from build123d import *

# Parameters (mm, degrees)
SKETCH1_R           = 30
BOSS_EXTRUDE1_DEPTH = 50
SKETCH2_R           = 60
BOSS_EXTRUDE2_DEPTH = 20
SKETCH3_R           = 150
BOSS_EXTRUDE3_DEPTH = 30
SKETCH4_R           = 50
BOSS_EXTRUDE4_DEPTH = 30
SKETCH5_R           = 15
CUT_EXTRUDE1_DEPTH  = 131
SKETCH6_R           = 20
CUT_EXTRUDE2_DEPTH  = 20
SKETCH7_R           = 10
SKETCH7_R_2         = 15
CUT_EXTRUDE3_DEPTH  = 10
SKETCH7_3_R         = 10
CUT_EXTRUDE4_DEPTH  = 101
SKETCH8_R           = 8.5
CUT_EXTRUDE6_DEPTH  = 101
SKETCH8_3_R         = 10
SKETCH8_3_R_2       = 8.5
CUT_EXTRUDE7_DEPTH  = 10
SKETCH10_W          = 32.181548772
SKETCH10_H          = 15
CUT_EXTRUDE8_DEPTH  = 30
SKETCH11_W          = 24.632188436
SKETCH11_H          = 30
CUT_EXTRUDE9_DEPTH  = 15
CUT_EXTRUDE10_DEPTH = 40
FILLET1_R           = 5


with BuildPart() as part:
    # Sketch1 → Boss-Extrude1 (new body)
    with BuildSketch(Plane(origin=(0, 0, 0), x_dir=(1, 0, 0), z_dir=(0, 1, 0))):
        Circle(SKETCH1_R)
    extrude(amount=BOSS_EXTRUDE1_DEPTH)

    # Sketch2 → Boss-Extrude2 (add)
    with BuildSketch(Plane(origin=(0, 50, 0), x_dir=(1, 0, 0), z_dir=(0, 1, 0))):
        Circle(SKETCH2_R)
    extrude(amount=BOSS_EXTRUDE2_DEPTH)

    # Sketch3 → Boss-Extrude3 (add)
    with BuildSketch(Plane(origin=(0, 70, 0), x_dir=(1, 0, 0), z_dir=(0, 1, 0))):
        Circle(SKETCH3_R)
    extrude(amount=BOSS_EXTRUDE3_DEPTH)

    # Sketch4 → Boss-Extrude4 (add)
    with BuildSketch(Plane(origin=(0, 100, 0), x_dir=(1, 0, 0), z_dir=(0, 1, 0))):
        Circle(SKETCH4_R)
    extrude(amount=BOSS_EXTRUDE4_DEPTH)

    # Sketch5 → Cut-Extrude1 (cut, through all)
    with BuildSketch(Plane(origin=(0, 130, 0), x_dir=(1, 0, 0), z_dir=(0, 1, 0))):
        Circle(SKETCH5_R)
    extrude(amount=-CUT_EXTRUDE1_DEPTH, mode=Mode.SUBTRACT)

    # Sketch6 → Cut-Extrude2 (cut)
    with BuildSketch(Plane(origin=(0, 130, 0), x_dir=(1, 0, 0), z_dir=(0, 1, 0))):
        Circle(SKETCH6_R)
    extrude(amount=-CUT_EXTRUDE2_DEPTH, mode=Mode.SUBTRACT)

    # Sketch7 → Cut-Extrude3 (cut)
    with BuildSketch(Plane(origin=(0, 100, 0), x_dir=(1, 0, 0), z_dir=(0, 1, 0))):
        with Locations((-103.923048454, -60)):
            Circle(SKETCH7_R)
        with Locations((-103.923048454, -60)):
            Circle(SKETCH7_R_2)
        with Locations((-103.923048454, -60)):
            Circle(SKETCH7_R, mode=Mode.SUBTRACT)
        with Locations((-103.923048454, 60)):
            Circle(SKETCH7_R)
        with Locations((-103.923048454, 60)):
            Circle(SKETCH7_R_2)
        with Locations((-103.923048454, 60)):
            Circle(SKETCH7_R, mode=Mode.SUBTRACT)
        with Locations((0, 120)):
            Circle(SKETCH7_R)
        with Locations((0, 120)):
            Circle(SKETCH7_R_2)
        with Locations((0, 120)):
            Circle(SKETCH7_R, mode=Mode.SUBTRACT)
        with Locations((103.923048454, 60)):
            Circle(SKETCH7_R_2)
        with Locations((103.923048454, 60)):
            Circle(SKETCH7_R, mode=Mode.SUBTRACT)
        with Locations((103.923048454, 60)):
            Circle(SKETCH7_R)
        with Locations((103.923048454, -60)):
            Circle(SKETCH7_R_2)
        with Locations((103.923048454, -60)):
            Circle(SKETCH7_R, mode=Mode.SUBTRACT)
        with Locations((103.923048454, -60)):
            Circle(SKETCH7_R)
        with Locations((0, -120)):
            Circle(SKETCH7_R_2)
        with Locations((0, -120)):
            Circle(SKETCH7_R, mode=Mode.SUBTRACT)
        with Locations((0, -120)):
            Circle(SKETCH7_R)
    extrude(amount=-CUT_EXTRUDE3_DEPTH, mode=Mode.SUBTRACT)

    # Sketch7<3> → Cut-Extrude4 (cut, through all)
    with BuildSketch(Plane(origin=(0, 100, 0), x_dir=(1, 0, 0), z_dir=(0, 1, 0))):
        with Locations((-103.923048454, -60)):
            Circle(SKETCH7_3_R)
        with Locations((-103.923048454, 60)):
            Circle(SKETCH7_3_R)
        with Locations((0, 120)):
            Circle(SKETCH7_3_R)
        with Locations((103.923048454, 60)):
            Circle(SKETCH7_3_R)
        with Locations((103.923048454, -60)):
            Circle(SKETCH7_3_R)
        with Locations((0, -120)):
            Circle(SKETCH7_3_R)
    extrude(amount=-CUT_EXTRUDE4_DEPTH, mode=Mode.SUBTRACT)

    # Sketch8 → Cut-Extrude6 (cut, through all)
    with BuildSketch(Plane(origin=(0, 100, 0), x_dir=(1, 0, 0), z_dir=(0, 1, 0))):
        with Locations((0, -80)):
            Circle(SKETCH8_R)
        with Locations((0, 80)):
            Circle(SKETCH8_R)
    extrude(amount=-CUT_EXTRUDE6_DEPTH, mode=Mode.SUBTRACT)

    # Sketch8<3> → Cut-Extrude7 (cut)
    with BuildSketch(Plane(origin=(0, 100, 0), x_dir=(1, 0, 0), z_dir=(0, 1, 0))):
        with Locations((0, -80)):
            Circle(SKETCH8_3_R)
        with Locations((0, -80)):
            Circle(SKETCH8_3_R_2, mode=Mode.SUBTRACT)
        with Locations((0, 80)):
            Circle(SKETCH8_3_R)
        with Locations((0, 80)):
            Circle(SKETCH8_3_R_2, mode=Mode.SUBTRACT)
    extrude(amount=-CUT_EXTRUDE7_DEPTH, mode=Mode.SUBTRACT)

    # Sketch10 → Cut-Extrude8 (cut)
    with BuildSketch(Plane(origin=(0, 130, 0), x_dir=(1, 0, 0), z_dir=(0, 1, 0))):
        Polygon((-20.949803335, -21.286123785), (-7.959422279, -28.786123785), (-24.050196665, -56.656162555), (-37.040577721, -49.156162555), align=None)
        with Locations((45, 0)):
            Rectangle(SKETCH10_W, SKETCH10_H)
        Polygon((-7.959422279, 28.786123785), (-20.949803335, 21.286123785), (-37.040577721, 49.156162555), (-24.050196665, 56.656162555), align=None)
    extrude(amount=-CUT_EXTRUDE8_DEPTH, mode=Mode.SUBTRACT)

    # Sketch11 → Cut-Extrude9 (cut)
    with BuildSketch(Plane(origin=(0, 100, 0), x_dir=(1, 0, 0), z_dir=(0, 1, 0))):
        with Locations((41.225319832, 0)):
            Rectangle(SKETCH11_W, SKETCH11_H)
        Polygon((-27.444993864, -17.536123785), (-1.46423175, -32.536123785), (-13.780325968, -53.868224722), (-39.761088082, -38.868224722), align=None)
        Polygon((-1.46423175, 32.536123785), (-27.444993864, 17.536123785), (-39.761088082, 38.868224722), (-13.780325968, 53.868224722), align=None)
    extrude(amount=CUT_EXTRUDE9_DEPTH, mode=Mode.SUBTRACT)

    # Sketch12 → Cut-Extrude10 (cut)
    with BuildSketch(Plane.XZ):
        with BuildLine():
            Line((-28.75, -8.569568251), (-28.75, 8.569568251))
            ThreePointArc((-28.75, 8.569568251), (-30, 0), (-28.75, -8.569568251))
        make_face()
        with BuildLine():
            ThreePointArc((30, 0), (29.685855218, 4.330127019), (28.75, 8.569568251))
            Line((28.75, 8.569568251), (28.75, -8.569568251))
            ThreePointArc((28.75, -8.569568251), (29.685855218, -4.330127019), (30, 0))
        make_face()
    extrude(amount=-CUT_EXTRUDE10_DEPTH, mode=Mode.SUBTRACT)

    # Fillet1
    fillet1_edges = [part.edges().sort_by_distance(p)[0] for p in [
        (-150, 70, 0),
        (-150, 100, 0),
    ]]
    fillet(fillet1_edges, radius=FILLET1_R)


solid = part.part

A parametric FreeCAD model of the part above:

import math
import FreeCAD as App
import Part
import Sketcher
from FreeCAD import Vector
Q = App.Units.Quantity


def edges_at(feature, points):
    """Names of the edges that pass closest to the given points."""
    edges = feature.Shape.Edges
    near = lambda p: min(range(len(edges)), key=lambda i: edges[i].distToShape(Part.Vertex(*p))[0])
    return sorted({f"Edge{near(p) + 1}" for p in points})

doc = App.newDocument("Part")
body = doc.addObject("PartDesign::Body", "Body")

sketch1 = body.newObject("Sketcher::SketchObject", "Sketch")
sketch1.AttachmentSupport = (doc.getObject("XZ_Plane"), [""])
sketch1.MapMode = "FlatFace"
sketch1.addGeometry(Part.Circle(Vector(0, 0, 0), Vector(0, 0, 1), 30), False)
sketch1.addConstraint([
    Sketcher.Constraint("Coincident", 0, 3, -1, 1),
    Sketcher.Constraint("Diameter", 0, Q("60 mm")),
])
pad1 = body.newObject("PartDesign::Pad", "Pad")
pad1.Profile = sketch1
pad1.Length = 50
pad1.Reversed = True

sketch2 = body.newObject("Sketcher::SketchObject", "Sketch001")
sketch2.AttachmentSupport = (doc.getObject("XZ_Plane"), [""])
sketch2.MapMode = "FlatFace"
sketch2.AttachmentOffset = App.Placement(Vector(0, 0, -50), App.Rotation())
sketch2.addGeometry(Part.Circle(Vector(0, 0, 0), Vector(0, 0, 1), 60), False)
sketch2.addConstraint([
    Sketcher.Constraint("Coincident", 0, 3, -1, 1),
    Sketcher.Constraint("Diameter", 0, Q("120 mm")),
])
pad2 = body.newObject("PartDesign::Pad", "Pad001")
pad2.Profile = sketch2
pad2.Length = 20
pad2.Reversed = True

sketch3 = body.newObject("Sketcher::SketchObject", "Sketch002")
sketch3.AttachmentSupport = (doc.getObject("XZ_Plane"), [""])
sketch3.MapMode = "FlatFace"
sketch3.AttachmentOffset = App.Placement(Vector(0, 0, -70), App.Rotation())
sketch3.addGeometry(Part.Circle(Vector(0, 0, 0), Vector(0, 0, 1), 150), False)
sketch3.addConstraint([
    Sketcher.Constraint("Coincident", 0, 3, -1, 1),
    Sketcher.Constraint("Diameter", 0, Q("300 mm")),
])
pad3 = body.newObject("PartDesign::Pad", "Pad002")
pad3.Profile = sketch3
pad3.Length = 30
pad3.Reversed = True

sketch4 = body.newObject("Sketcher::SketchObject", "Sketch003")
sketch4.AttachmentSupport = (doc.getObject("XZ_Plane"), [""])
sketch4.MapMode = "FlatFace"
sketch4.AttachmentOffset = App.Placement(Vector(0, 0, -100), App.Rotation())
sketch4.addGeometry(Part.Circle(Vector(0, 0, 0), Vector(0, 0, 1), 50), False)
sketch4.addConstraint([
    Sketcher.Constraint("Coincident", 0, 3, -1, 1),
    Sketcher.Constraint("Diameter", 0, Q("100 mm")),
])
pad4 = body.newObject("PartDesign::Pad", "Pad003")
pad4.Profile = sketch4
pad4.Length = 30
pad4.Reversed = True

sketch5 = body.newObject("Sketcher::SketchObject", "Sketch004")
sketch5.AttachmentSupport = (doc.getObject("XZ_Plane"), [""])
sketch5.MapMode = "FlatFace"
sketch5.AttachmentOffset = App.Placement(Vector(0, 0, -130), App.Rotation())
sketch5.addGeometry(Part.Circle(Vector(0, 0, 0), Vector(0, 0, 1), 15), False)
sketch5.addConstraint([
    Sketcher.Constraint("Coincident", 0, 3, -1, 1),
    Sketcher.Constraint("Diameter", 0, Q("30 mm")),
])
pocket1 = body.newObject("PartDesign::Pocket", "Pocket")
pocket1.Profile = sketch5
pocket1.Type = "ThroughAll"
pocket1.Reversed = True

sketch6 = body.newObject("Sketcher::SketchObject", "Sketch005")
sketch6.AttachmentSupport = (doc.getObject("XZ_Plane"), [""])
sketch6.MapMode = "FlatFace"
sketch6.AttachmentOffset = App.Placement(Vector(0, 0, -130), App.Rotation())
sketch6.addGeometry(Part.Circle(Vector(0, 0, 0), Vector(0, 0, 1), 20), False)
sketch6.addConstraint([
    Sketcher.Constraint("Coincident", 0, 3, -1, 1),
    Sketcher.Constraint("Diameter", 0, Q("40 mm")),
])
pocket2 = body.newObject("PartDesign::Pocket", "Pocket001")
pocket2.Profile = sketch6
pocket2.Length = 20
pocket2.Reversed = True

sketch7 = body.newObject("Sketcher::SketchObject", "Sketch006")
sketch7.AttachmentSupport = (doc.getObject("XZ_Plane"), [""])
sketch7.MapMode = "FlatFace"
sketch7.AttachmentOffset = App.Placement(Vector(0, 0, -100), App.Rotation())
sketch7.addGeometry([
    Part.Circle(Vector(-104, 60, 0), Vector(0, 0, 1), 15),
    Part.Circle(Vector(-104, 60, 0), Vector(0, 0, 1), 10),
    Part.Circle(Vector(-104, -60, 0), Vector(0, 0, 1), 15),
    Part.Circle(Vector(-104, -60, 0), Vector(0, 0, 1), 10),
    Part.Circle(Vector(0, -120, 0), Vector(0, 0, 1), 15),
    Part.Circle(Vector(0, -120, 0), Vector(0, 0, 1), 10),
    Part.Circle(Vector(104, -60, 0), Vector(0, 0, 1), 15),
    Part.Circle(Vector(104, 60, 0), Vector(0, 0, 1), 15),
    Part.Circle(Vector(0, 120, 0), Vector(0, 0, 1), 15),
], False)
sketch7.addConstraint([
    Sketcher.Constraint("Coincident", 1, 3, 0, 3),
    Sketcher.Constraint("Coincident", 3, 3, 2, 3),
    Sketcher.Constraint("Coincident", 5, 3, 4, 3),
    Sketcher.Constraint("Equal", 0, 2),
    Sketcher.Constraint("Equal", 1, 3),
    Sketcher.Constraint("Equal", 2, 4),
    Sketcher.Constraint("Equal", 3, 5),
    Sketcher.Constraint("Equal", 4, 6),
    Sketcher.Constraint("Equal", 6, 7),
    Sketcher.Constraint("Equal", 7, 8),
    Sketcher.Constraint("Symmetric", 0, 3, 6, 3, -1, 1),
    Sketcher.Constraint("Symmetric", 2, 3, 7, 3, -1, 1),
    Sketcher.Constraint("Symmetric", 4, 3, 8, 3, -1, 1),
    Sketcher.Constraint("Symmetric", 2, 3, 6, 3, -2),
    Sketcher.Constraint("PointOnObject", 4, 3, -2),
    Sketcher.Constraint("Diameter", 0, Q("30 mm")),
    Sketcher.Constraint("Diameter", 1, Q("20 mm")),
    Sketcher.Constraint("DistanceY", -1, 1, 0, 3, Q("60 mm")),
    Sketcher.Constraint("DistanceY", 4, 3, -1, 1, Q("120 mm")),
    Sketcher.Constraint("DistanceX", 0, 3, -1, 1, Q("103.923048 mm")),
])
pocket3 = body.newObject("PartDesign::Pocket", "Pocket002")
pocket3.Profile = sketch7
pocket3.Length = 10
pocket3.Reversed = True

sketch8 = body.newObject("Sketcher::SketchObject", "Sketch007")
sketch8.AttachmentSupport = (doc.getObject("XZ_Plane"), [""])
sketch8.MapMode = "FlatFace"
sketch8.AttachmentOffset = App.Placement(Vector(0, 0, -100), App.Rotation())
sketch8.addGeometry([
    Part.Circle(Vector(-104, 60, 0), Vector(0, 0, 1), 10),
    Part.Circle(Vector(-104, -60, 0), Vector(0, 0, 1), 10),
    Part.Circle(Vector(0, -120, 0), Vector(0, 0, 1), 10),
    Part.Circle(Vector(104, -60, 0), Vector(0, 0, 1), 10),
    Part.Circle(Vector(104, 60, 0), Vector(0, 0, 1), 10),
    Part.Circle(Vector(0, 120, 0), Vector(0, 0, 1), 10),
], False)
sketch8.addConstraint([
    Sketcher.Constraint("Equal", 0, 1),
    Sketcher.Constraint("Equal", 1, 2),
    Sketcher.Constraint("Equal", 2, 3),
    Sketcher.Constraint("Equal", 3, 4),
    Sketcher.Constraint("Equal", 4, 5),
    Sketcher.Constraint("Symmetric", 0, 3, 3, 3, -1, 1),
    Sketcher.Constraint("Symmetric", 1, 3, 4, 3, -1, 1),
    Sketcher.Constraint("Symmetric", 2, 3, 5, 3, -1, 1),
    Sketcher.Constraint("Symmetric", 1, 3, 3, 3, -2),
    Sketcher.Constraint("PointOnObject", 2, 3, -2),
    Sketcher.Constraint("Diameter", 0, Q("20 mm")),
    Sketcher.Constraint("DistanceY", -1, 1, 0, 3, Q("60 mm")),
    Sketcher.Constraint("DistanceY", 2, 3, -1, 1, Q("120 mm")),
    Sketcher.Constraint("DistanceX", 0, 3, -1, 1, Q("103.923048 mm")),
])
pocket4 = body.newObject("PartDesign::Pocket", "Pocket003")
pocket4.Profile = sketch8
pocket4.Type = "ThroughAll"
pocket4.Reversed = True

sketch9 = body.newObject("Sketcher::SketchObject", "Sketch008")
sketch9.AttachmentSupport = (doc.getObject("XZ_Plane"), [""])
sketch9.MapMode = "FlatFace"
sketch9.AttachmentOffset = App.Placement(Vector(0, 0, -100), App.Rotation())
sketch9.addGeometry([
    Part.Circle(Vector(0, 80, 0), Vector(0, 0, 1), 8),
    Part.Circle(Vector(0, -80, 0), Vector(0, 0, 1), 8),
], False)
sketch9.addConstraint([
    Sketcher.Constraint("Equal", 0, 1),
    Sketcher.Constraint("Symmetric", 0, 3, 1, 3, -1, 1),
    Sketcher.Constraint("PointOnObject", 0, 3, -2),
    Sketcher.Constraint("Diameter", 0, Q("17 mm")),
    Sketcher.Constraint("DistanceY", -1, 1, 0, 3, Q("80 mm")),
])
pocket5 = body.newObject("PartDesign::Pocket", "Pocket004")
pocket5.Profile = sketch9
pocket5.Type = "ThroughAll"
pocket5.Reversed = True

sketch10 = body.newObject("Sketcher::SketchObject", "Sketch009")
sketch10.AttachmentSupport = (doc.getObject("XZ_Plane"), [""])
sketch10.MapMode = "FlatFace"
sketch10.AttachmentOffset = App.Placement(Vector(0, 0, -100), App.Rotation())
sketch10.addGeometry([
    Part.Circle(Vector(0, 80, 0), Vector(0, 0, 1), 10),
    Part.Circle(Vector(0, 80, 0), Vector(0, 0, 1), 8),
    Part.Circle(Vector(0, -80, 0), Vector(0, 0, 1), 10),
    Part.Circle(Vector(0, -80, 0), Vector(0, 0, 1), 8),
], False)
sketch10.addConstraint([
    Sketcher.Constraint("Coincident", 1, 3, 0, 3),
    Sketcher.Constraint("Coincident", 3, 3, 2, 3),
    Sketcher.Constraint("Equal", 0, 2),
    Sketcher.Constraint("Equal", 1, 3),
    Sketcher.Constraint("Symmetric", 0, 3, 2, 3, -1, 1),
    Sketcher.Constraint("PointOnObject", 0, 3, -2),
    Sketcher.Constraint("Diameter", 0, Q("20 mm")),
    Sketcher.Constraint("Diameter", 1, Q("17 mm")),
    Sketcher.Constraint("DistanceY", -1, 1, 0, 3, Q("80 mm")),
])
pocket6 = body.newObject("PartDesign::Pocket", "Pocket005")
pocket6.Profile = sketch10
pocket6.Length = 10
pocket6.Reversed = True

sketch11 = body.newObject("Sketcher::SketchObject", "Sketch010")
sketch11.AttachmentSupport = (doc.getObject("XZ_Plane"), [""])
sketch11.MapMode = "FlatFace"
sketch11.AttachmentOffset = App.Placement(Vector(0, 0, -130), App.Rotation())
sketch11.addGeometry([
    Part.LineSegment(Vector(-8, 29, 0), Vector(-21, 21, 0)),
    Part.LineSegment(Vector(-21, 21, 0), Vector(-37, 49, 0)),
    Part.LineSegment(Vector(-37, 49, 0), Vector(-24, 57, 0)),
    Part.LineSegment(Vector(-24, 57, 0), Vector(-8, 29, 0)),
    Part.LineSegment(Vector(29, -8, 0), Vector(29, 8, 0)),
    Part.LineSegment(Vector(29, 8, 0), Vector(61, 8, 0)),
    Part.LineSegment(Vector(61, 8, 0), Vector(61, -8, 0)),
    Part.LineSegment(Vector(61, -8, 0), Vector(29, -8, 0)),
    Part.LineSegment(Vector(-21, -21, 0), Vector(-8, -29, 0)),
    Part.LineSegment(Vector(-8, -29, 0), Vector(-24, -57, 0)),
    Part.LineSegment(Vector(-24, -57, 0), Vector(-37, -49, 0)),
    Part.LineSegment(Vector(-37, -49, 0), Vector(-21, -21, 0)),
], False)
sketch11.addConstraint([
    Sketcher.Constraint("Coincident", 0, 2, 1, 1),
    Sketcher.Constraint("Coincident", 1, 2, 2, 1),
    Sketcher.Constraint("Coincident", 2, 2, 3, 1),
    Sketcher.Constraint("Coincident", 3, 2, 0, 1),
    Sketcher.Constraint("Coincident", 4, 2, 5, 1),
    Sketcher.Constraint("Coincident", 5, 2, 6, 1),
    Sketcher.Constraint("Coincident", 6, 2, 7, 1),
    Sketcher.Constraint("Coincident", 7, 2, 4, 1),
    Sketcher.Constraint("Coincident", 8, 2, 9, 1),
    Sketcher.Constraint("Coincident", 9, 2, 10, 1),
    Sketcher.Constraint("Coincident", 10, 2, 11, 1),
    Sketcher.Constraint("Coincident", 11, 2, 8, 1),
    Sketcher.Constraint("Vertical", 4),
    Sketcher.Constraint("Horizontal", 5),
    Sketcher.Constraint("Vertical", 6),
    Sketcher.Constraint("Horizontal", 7),
    Sketcher.Constraint("Symmetric", 3, 2, 8, 2, -1),
    Sketcher.Constraint("Symmetric", 2, 2, 9, 2, -1),
    Sketcher.Constraint("Symmetric", 1, 2, 10, 2, -1),
    Sketcher.Constraint("Symmetric", 0, 2, 11, 2, -1),
    Sketcher.Constraint("Perpendicular", 0, 1),
    Sketcher.Constraint("Perpendicular", 1, 2),
    Sketcher.Constraint("Perpendicular", 2, 3),
    Sketcher.Constraint("DistanceY", 4, 1, 4, 2, Q("15 mm")),
    Sketcher.Constraint("Angle", 0, Q("-150 deg")),
    Sketcher.Constraint("Distance", 0, Q("15 mm")),
    Sketcher.Constraint("DistanceY", -1, 1, 4, 2, Q("7.5 mm")),
    Sketcher.Constraint("DistanceX", 5, 1, 5, 2, Q("32.181549 mm")),
    Sketcher.Constraint("Distance", 1, Q("32.181549 mm")),
    Sketcher.Constraint("DistanceX", 0, 2, 4, 2, Q("49.859029 mm")),
    Sketcher.Constraint("DistanceX", 0, 2, -1, 1, Q("20.949803 mm")),
    Sketcher.Constraint("DistanceY", -1, 1, 0, 2, Q("21.286124 mm")),
])
pocket7 = body.newObject("PartDesign::Pocket", "Pocket006")
pocket7.Profile = sketch11
pocket7.Length = 30
pocket7.Reversed = True

sketch12 = body.newObject("Sketcher::SketchObject", "Sketch011")
sketch12.AttachmentSupport = (doc.getObject("XZ_Plane"), [""])
sketch12.MapMode = "FlatFace"
sketch12.AttachmentOffset = App.Placement(Vector(0, 0, -100), App.Rotation())
sketch12.addGeometry([
    Part.LineSegment(Vector(29, -15, 0), Vector(29, 15, 0)),
    Part.LineSegment(Vector(29, 15, 0), Vector(54, 15, 0)),
    Part.LineSegment(Vector(54, 15, 0), Vector(54, -15, 0)),
    Part.LineSegment(Vector(54, -15, 0), Vector(29, -15, 0)),
    Part.LineSegment(Vector(-1, 33, 0), Vector(-27, 18, 0)),
    Part.LineSegment(Vector(-27, 18, 0), Vector(-40, 39, 0)),
    Part.LineSegment(Vector(-40, 39, 0), Vector(-14, 54, 0)),
    Part.LineSegment(Vector(-14, 54, 0), Vector(-1, 33, 0)),
    Part.LineSegment(Vector(-27, -18, 0), Vector(-1, -33, 0)),
    Part.LineSegment(Vector(-1, -33, 0), Vector(-14, -54, 0)),
    Part.LineSegment(Vector(-14, -54, 0), Vector(-40, -39, 0)),
    Part.LineSegment(Vector(-40, -39, 0), Vector(-27, -18, 0)),
], False)
sketch12.addConstraint([
    Sketcher.Constraint("Coincident", 0, 2, 1, 1),
    Sketcher.Constraint("Coincident", 1, 2, 2, 1),
    Sketcher.Constraint("Coincident", 2, 2, 3, 1),
    Sketcher.Constraint("Coincident", 3, 2, 0, 1),
    Sketcher.Constraint("Coincident", 4, 2, 5, 1),
    Sketcher.Constraint("Coincident", 5, 2, 6, 1),
    Sketcher.Constraint("Coincident", 6, 2, 7, 1),
    Sketcher.Constraint("Coincident", 7, 2, 4, 1),
    Sketcher.Constraint("Coincident", 8, 2, 9, 1),
    Sketcher.Constraint("Coincident", 9, 2, 10, 1),
    Sketcher.Constraint("Coincident", 10, 2, 11, 1),
    Sketcher.Constraint("Coincident", 11, 2, 8, 1),
    Sketcher.Constraint("Vertical", 0),
    Sketcher.Constraint("Horizontal", 1),
    Sketcher.Constraint("Vertical", 2),
    Sketcher.Constraint("Horizontal", 3),
    Sketcher.Constraint("Symmetric", 7, 2, 8, 2, -1),
    Sketcher.Constraint("Symmetric", 6, 2, 9, 2, -1),
    Sketcher.Constraint("Symmetric", 5, 2, 10, 2, -1),
    Sketcher.Constraint("Symmetric", 4, 2, 11, 2, -1),
    Sketcher.Constraint("Perpendicular", 4, 5),
    Sketcher.Constraint("Perpendicular", 5, 6),
    Sketcher.Constraint("Perpendicular", 6, 7),
    Sketcher.Constraint("DistanceY", 0, 1, 0, 2, Q("30 mm")),
    Sketcher.Constraint("Angle", 4, Q("-150 deg")),
    Sketcher.Constraint("Distance", 4, Q("30 mm")),
    Sketcher.Constraint("DistanceY", -1, 1, 0, 2, Q("15 mm")),
    Sketcher.Constraint("DistanceX", 1, 1, 1, 2, Q("24.632188 mm")),
    Sketcher.Constraint("DistanceY", 4, 2, 5, 2, Q("21.332101 mm")),
    Sketcher.Constraint("DistanceX", 5, 2, -1, 1, Q("39.761088 mm")),
    Sketcher.Constraint("DistanceX", 4, 2, 0, 2, Q("56.354219 mm")),
    Sketcher.Constraint("DistanceY", 9, 2, 4, 2, Q("71.404349 mm")),
])
pocket8 = body.newObject("PartDesign::Pocket", "Pocket007")
pocket8.Profile = sketch12
pocket8.Length = 15

sketch13 = body.newObject("Sketcher::SketchObject", "Sketch012")
sketch13.AttachmentSupport = (doc.getObject("XZ_Plane"), [""])
sketch13.MapMode = "FlatFace"
sketch13.addGeometry([
    Part.LineSegment(Vector(-29, -9, 0), Vector(-29, 9, 0)),
    Part.ArcOfCircle(Part.Circle(Vector(0, 0, 0), Vector(0, 0, 1), 30), math.radians(163), math.radians(197)),
    Part.ArcOfCircle(Part.Circle(Vector(0, 0, 0), Vector(0, 0, 1), 30), math.radians(0), math.radians(16.6)),
    Part.LineSegment(Vector(29, 9, 0), Vector(29, -9, 0)),
    Part.ArcOfCircle(Part.Circle(Vector(0, 0, 0), Vector(0, 0, 1), 30), math.radians(-16.6), math.radians(0)),
], False)
sketch13.addConstraint([
    Sketcher.Constraint("Coincident", 0, 1, 1, 2),
    Sketcher.Constraint("Coincident", 1, 1, 0, 2),
    Sketcher.Constraint("Coincident", 2, 2, 3, 1),
    Sketcher.Constraint("Coincident", 3, 2, 4, 1),
    Sketcher.Constraint("Tangent", 4, 2, 2, 1),
    Sketcher.Constraint("Vertical", 0),
    Sketcher.Constraint("Vertical", 3),
    Sketcher.Constraint("Coincident", 1, 3, -1, 1),
    Sketcher.Constraint("Coincident", 2, 3, -1, 1),
    Sketcher.Constraint("Equal", 1, 2),
    Sketcher.Constraint("Equal", 2, 4),
    Sketcher.Constraint("PointOnObject", 4, 2, -1),
    Sketcher.Constraint("Horizontal", 1, 1, 2, 2),
    Sketcher.Constraint("Radius", 1, Q("30 mm")),
    Sketcher.Constraint("DistanceX", 1, 1, 2, 2, Q("57.5 mm")),
])
pocket9 = body.newObject("PartDesign::Pocket", "Pocket008")
pocket9.Profile = sketch13
pocket9.Length = 40
doc.recompute()

fillet = body.newObject("PartDesign::Fillet", "Fillet")
fillet.Base = (pocket9, edges_at(pocket9, [(-150, 70, 0), (-150, 100, 0)]))
fillet.Radius = 5

doc.recompute()
